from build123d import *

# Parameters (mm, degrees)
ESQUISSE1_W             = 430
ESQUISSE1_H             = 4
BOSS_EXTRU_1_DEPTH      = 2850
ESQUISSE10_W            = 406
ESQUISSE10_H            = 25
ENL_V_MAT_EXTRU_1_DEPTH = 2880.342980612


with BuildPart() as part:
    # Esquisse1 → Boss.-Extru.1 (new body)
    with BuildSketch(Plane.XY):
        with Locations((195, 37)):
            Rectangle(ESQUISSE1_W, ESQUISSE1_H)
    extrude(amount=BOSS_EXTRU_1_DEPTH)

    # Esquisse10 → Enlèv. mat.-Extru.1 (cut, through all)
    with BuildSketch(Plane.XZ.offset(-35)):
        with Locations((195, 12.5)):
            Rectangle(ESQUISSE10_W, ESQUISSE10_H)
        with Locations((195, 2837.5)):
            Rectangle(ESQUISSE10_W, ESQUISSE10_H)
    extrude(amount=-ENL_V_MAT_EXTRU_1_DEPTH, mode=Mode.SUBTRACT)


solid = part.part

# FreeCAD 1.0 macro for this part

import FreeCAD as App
import Part
import Sketcher
from FreeCAD import Vector


def add_polygon(sketch, points):
    """Adds a closed chain of lines whose ends are joined by coincident constraints."""
    first, n = sketch.GeometryCount, len(points)
    for a, b in zip(points, points[1:] + points[:1]):
        sketch.addGeometry(Part.LineSegment(App.Vector(*a, 0), App.Vector(*b, 0)), False)
    for i in range(n):
        sketch.addConstraint(Sketcher.Constraint("Coincident", first + i, 2, first + (i + 1) % n, 1))

doc = App.newDocument("Part")
body = doc.addObject("PartDesign::Body", "Body")

# Sketch on XY plane
sketch1 = doc.addObject("Sketcher::SketchObject", "Sketch")
body.addObject(sketch1)
sketch1.AttachmentSupport = (doc.XY_Plane, [""])
sketch1.MapMode = "FlatFace"
add_polygon(sketch1, [(-20, 39), (-20, 35), (410, 35), (410, 39)])  # lines 0-3
sketch1.addConstraint([
    Sketcher.Constraint("Vertical", 0),
    Sketcher.Constraint("Horizontal", 1),
    Sketcher.Constraint("Vertical", 2),
    Sketcher.Constraint("Horizontal", 3),
    Sketcher.Constraint("DistanceX", 1, 1, 1, 2, 430.0),
    Sketcher.Constraint("DistanceY", 0, 2, 0, 1, 4.0),
    Sketcher.Constraint("DistanceX", 0, 2, -1, 1, 20.0),
    Sketcher.Constraint("DistanceY", -1, 1, 0, 2, 35.0),
])
pad1 = doc.addObject("PartDesign::Pad", "Pad")
body.addObject(pad1)
pad1.Profile = sketch1
pad1.Length = 2850

# Sketch on XZ plane
sketch2 = doc.addObject("Sketcher::SketchObject", "Sketch001")
body.addObject(sketch2)
sketch2.AttachmentSupport = (doc.XZ_Plane, [""])
sketch2.MapMode = "FlatFace"
sketch2.AttachmentOffset = App.Placement(Vector(0, 0, -35), App.Rotation())
add_polygon(sketch2, [(-8, 25), (-8, 0), (398, 0), (398, 25)])  # lines 0-3
add_polygon(sketch2, [(-8, 2850), (-8, 2825), (398, 2825), (398, 2850)])  # lines 4-7
sketch2.addConstraint([
    Sketcher.Constraint("Vertical", 0),
    Sketcher.Constraint("Horizontal", 1),
    Sketcher.Constraint("Vertical", 2),
    Sketcher.Constraint("Horizontal", 3),
    Sketcher.Constraint("Vertical", 4),
    Sketcher.Constraint("Horizontal", 5),
    Sketcher.Constraint("Vertical", 6),
    Sketcher.Constraint("Horizontal", 7),
    Sketcher.Constraint("PointOnObject", 0, 2, -1),
    Sketcher.Constraint("Vertical", 3, 2, 4, 2),
    Sketcher.Constraint("Vertical", 2, 2, 5, 2),
    Sketcher.Constraint("Equal", 2, 4),
    Sketcher.Constraint("DistanceX", 1, 1, 1, 2, 406.0),
    Sketcher.Constraint("DistanceY", 0, 2, 0, 1, 25.0),
    Sketcher.Constraint("DistanceX", 0, 2, -1, 1, 8.0),
    Sketcher.Constraint("DistanceY", -1, 1, 4, 2, 2825.0),
])
pocket1 = doc.addObject("PartDesign::Pocket", "Pocket")
body.addObject(pocket1)
pocket1.Profile = sketch2
pocket1.Type = "ThroughAll"

doc.recompute()
